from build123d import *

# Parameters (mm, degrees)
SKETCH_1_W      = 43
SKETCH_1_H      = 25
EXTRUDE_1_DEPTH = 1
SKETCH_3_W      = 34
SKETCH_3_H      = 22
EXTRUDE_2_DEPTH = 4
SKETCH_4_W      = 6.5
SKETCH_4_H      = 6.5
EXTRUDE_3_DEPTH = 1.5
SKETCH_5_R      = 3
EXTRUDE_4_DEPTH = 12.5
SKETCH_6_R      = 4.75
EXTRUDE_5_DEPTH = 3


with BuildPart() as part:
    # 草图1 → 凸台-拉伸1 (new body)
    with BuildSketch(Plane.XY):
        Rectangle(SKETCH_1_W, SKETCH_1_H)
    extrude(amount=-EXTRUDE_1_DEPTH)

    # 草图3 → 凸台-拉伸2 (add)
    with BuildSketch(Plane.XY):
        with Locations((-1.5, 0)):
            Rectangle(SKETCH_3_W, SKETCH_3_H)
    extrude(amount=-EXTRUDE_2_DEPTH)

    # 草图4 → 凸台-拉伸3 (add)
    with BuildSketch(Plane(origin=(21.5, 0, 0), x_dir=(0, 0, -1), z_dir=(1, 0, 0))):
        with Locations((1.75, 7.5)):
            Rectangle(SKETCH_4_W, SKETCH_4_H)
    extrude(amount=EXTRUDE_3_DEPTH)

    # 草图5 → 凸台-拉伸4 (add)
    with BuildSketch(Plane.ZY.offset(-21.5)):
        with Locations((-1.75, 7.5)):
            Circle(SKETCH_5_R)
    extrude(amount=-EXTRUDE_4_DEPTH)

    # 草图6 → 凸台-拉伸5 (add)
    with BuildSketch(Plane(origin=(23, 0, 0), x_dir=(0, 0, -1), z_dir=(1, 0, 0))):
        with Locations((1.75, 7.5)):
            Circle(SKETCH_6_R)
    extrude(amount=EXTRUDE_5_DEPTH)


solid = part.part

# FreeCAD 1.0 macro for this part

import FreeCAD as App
import Part
import Sketcher
Q = App.Units.Quantity

doc = App.newDocument("Part")
params = doc.addObject("Spreadsheet::Sheet", "Params")
for row, (alias, value) in enumerate([
    ("sketch1_width", "43 mm"),
    ("sketch1_height", "25 mm"),
    ("pad1_length", "1 mm"),
    ("sketch2_width", "34 mm"),
    ("sketch2_height", "22 mm"),
    ("pad2_length", "4 mm"),
    ("sketch3_width", "6.5 mm"),
    ("pad3_length", "1.5 mm"),
    ("sketch4_diameter", "6 mm"),
    ("pad4_length", "12.5 mm"),
    ("sketch5_diameter", "9.5 mm"),
    ("pad5_length", "3 mm"),
], start=1):
    params.set(f"A{row}", alias)
    params.set(f"B{row}", "=" + value)
    params.setAlias(f"B{row}", alias)

body = doc.addObject("PartDesign::Body", "Body")

# Sketch on XY plane
sketch1 = body.newObject("Sketcher::SketchObject", "Sketch")
sketch1.AttachmentSupport = (doc.getObject("XY_Plane"), [""])
sketch1.MapMode = "FlatFace"
sketch1.addGeometry(Part.LineSegment(App.Vector(-21.5, 12.5, 0), App.Vector(-21.5, -12.5, 0)), False)
sketch1.addGeometry(Part.LineSegment(App.Vector(-21.5, -12.5, 0), App.Vector(21.5, -12.5, 0)), False)
sketch1.addGeometry(Part.LineSegment(App.Vector(21.5, -12.5, 0), App.Vector(21.5, 12.5, 0)), False)
sketch1.addGeometry(Part.LineSegment(App.Vector(21.5, 12.5, 0), App.Vector(-21.5, 12.5, 0)), False)
sketch1.addConstraint(Sketcher.Constraint("Coincident", 0, 2, 1, 1))
sketch1.addConstraint(Sketcher.Constraint("Coincident", 1, 2, 2, 1))
sketch1.addConstraint(Sketcher.Constraint("Coincident", 2, 2, 3, 1))
sketch1.addConstraint(Sketcher.Constraint("Coincident", 3, 2, 0, 1))
sketch1.addConstraint(Sketcher.Constraint("Vertical", 0))
sketch1.addConstraint(Sketcher.Constraint("Horizontal", 1))
sketch1.addConstraint(Sketcher.Constraint("Vertical", 2))
sketch1.addConstraint(Sketcher.Constraint("Horizontal", 3))
sketch1.addConstraint(Sketcher.Constraint("Symmetric", 0, 2, 2, 2, -1, 1))
sketch1.addConstraint(Sketcher.Constraint("DistanceX", 1, 1, 1, 2, Q("43 mm")))
sketch1.addConstraint(Sketcher.Constraint("DistanceY", 0, 2, 0, 1, Q("25 mm")))
sketch1.setExpression("Constraints[9]", "Params.sketch1_width")
sketch1.setExpression("Constraints[10]", "Params.sketch1_height")
pad1 = body.newObject("PartDesign::Pad", "Pad")
pad1.Profile = sketch1
pad1.setExpression("Length", "Params.pad1_length")
pad1.Reversed = True

# Sketch on XY plane
sketch2 = body.newObject("Sketcher::SketchObject", "Sketch001")
sketch2.AttachmentSupport = (doc.getObject("XY_Plane"), [""])
sketch2.MapMode = "FlatFace"
sketch2.addGeometry(Part.LineSegment(App.Vector(-18.5, 11, 0), App.Vector(-18.5, -11, 0)), False)
sketch2.addGeometry(Part.LineSegment(App.Vector(-18.5, -11, 0), App.Vector(15.5, -11, 0)), False)
sketch2.addGeometry(Part.LineSegment(App.Vector(15.5, -11, 0), App.Vector(15.5, 11, 0)), False)
sketch2.addGeometry(Part.LineSegment(App.Vector(15.5, 11, 0), App.Vector(-18.5, 11, 0)), False)
sketch2.addConstraint(Sketcher.Constraint("Coincident", 0, 2, 1, 1))
sketch2.addConstraint(Sketcher.Constraint("Coincident", 1, 2, 2, 1))
sketch2.addConstraint(Sketcher.Constraint("Coincident", 2, 2, 3, 1))
sketch2.addConstraint(Sketcher.Constraint("Coincident", 3, 2, 0, 1))
sketch2.addConstraint(Sketcher.Constraint("Vertical", 0))
sketch2.addConstraint(Sketcher.Constraint("Horizontal", 1))
sketch2.addConstraint(Sketcher.Constraint("Vertical", 2))
sketch2.addConstraint(Sketcher.Constraint("Horizontal", 3))
sketch2.addConstraint(Sketcher.Constraint("DistanceX", 1, 1, 1, 2, Q("34 mm")))
sketch2.addConstraint(Sketcher.Constraint("DistanceY", 0, 2, 0, 1, Q("22 mm")))
sketch2.addConstraint(Sketcher.Constraint("DistanceY", 0, 2, -1, 1, Q("11 mm")))
sketch2.addConstraint(Sketcher.Constraint("DistanceX", 0, 2, -1, 1, Q("18.5 mm")))
sketch2.setExpression("Constraints[8]", "Params.sketch2_width")
sketch2.setExpression("Constraints[9]", "Params.sketch2_height")
pad2 = body.newObject("PartDesign::Pad", "Pad001")
pad2.Profile = sketch2
pad2.setExpression("Length", "Params.pad2_length")
pad2.Reversed = True

# Sketch on YZ plane
sketch3 = body.newObject("Sketcher::SketchObject", "Sketch002")
sketch3.AttachmentSupport = (doc.getObject("YZ_Plane"), [""])
sketch3.MapMode = "FlatFace"
sketch3.AttachmentOffset = App.Placement(App.Vector(0, 0, 21.5), App.Rotation())
sketch3.addGeometry(Part.LineSegment(App.Vector(10.75, 1.5, 0), App.Vector(4.25, 1.5, 0)), False)
sketch3.addGeometry(Part.LineSegment(App.Vector(4.25, 1.5, 0), App.Vector(4.25, -5, 0)), False)
sketch3.addGeometry(Part.LineSegment(App.Vector(4.25, -5, 0), App.Vector(10.75, -5, 0)), False)
sketch3.addGeometry(Part.LineSegment(App.Vector(10.75, -5, 0), App.Vector(10.75, 1.5, 0)), False)
sketch3.addConstraint(Sketcher.Constraint("Coincident", 0, 2, 1, 1))
sketch3.addConstraint(Sketcher.Constraint("Coincident", 1, 2, 2, 1))
sketch3.addConstraint(Sketcher.Constraint("Coincident", 2, 2, 3, 1))
sketch3.addConstraint(Sketcher.Constraint("Coincident", 3, 2, 0, 1))
sketch3.addConstraint(Sketcher.Constraint("Horizontal", 0))
sketch3.addConstraint(Sketcher.Constraint("Vertical", 1))
sketch3.addConstraint(Sketcher.Constraint("Horizontal", 2))
sketch3.addConstraint(Sketcher.Constraint("Vertical", 3))
sketch3.addConstraint(Sketcher.Constraint("Equal", 2, 1))
sketch3.addConstraint(Sketcher.Constraint("DistanceX", 0, 2, 0, 1, Q("6.5 mm")))
sketch3.addConstraint(Sketcher.Constraint("DistanceY", 1, 2, -1, 1, Q("5 mm")))
sketch3.addConstraint(Sketcher.Constraint("DistanceX", -1, 1, 0, 2, Q("4.25 mm")))
sketch3.setExpression("Constraints[9]", "Params.sketch3_width")
pad3 = body.newObject("PartDesign::Pad", "Pad002")
pad3.Profile = sketch3
pad3.setExpression("Length", "Params.pad3_length")

# Sketch on YZ plane
sketch4 = body.newObject("Sketcher::SketchObject", "Sketch003")
sketch4.AttachmentSupport = (doc.getObject("YZ_Plane"), [""])
sketch4.MapMode = "FlatFace"
sketch4.AttachmentOffset = App.Placement(App.Vector(0, 0, 21.5), App.Rotation())
sketch4.addGeometry(Part.Circle(App.Vector(7.5, -1.75, 0), App.Vector(0, 0, 1), 3), False)
sketch4.addConstraint(Sketcher.Constraint("Diameter", 0, Q("6 mm")))
sketch4.addConstraint(Sketcher.Constraint("DistanceX", -1, 1, 0, 3, Q("7.5 mm")))
sketch4.addConstraint(Sketcher.Constraint("DistanceY", 0, 3, -1, 1, Q("1.75 mm")))
sketch4.setExpression("Constraints[0]", "Params.sketch4_diameter")
pad4 = body.newObject("PartDesign::Pad", "Pad003")
pad4.Profile = sketch4
pad4.setExpression("Length", "Params.pad4_length")

# Sketch on YZ plane
sketch5 = body.newObject("Sketcher::SketchObject", "Sketch004")
sketch5.AttachmentSupport = (doc.getObject("YZ_Plane"), [""])
sketch5.MapMode = "FlatFace"
sketch5.AttachmentOffset = App.Placement(App.Vector(0, 0, 23), App.Rotation())
sketch5.addGeometry(Part.Circle(App.Vector(7.5, -1.75, 0), App.Vector(0, 0, 1), 4.75), False)
sketch5.addConstraint(Sketcher.Constraint("Diameter", 0, Q("9.5 mm")))
sketch5.addConstraint(Sketcher.Constraint("DistanceX", -1, 1, 0, 3, Q("7.5 mm")))
sketch5.addConstraint(Sketcher.Constraint("DistanceY", 0, 3, -1, 1, Q("1.75 mm")))
sketch5.setExpression("Constraints[0]", "Params.sketch5_diameter")
pad5 = body.newObject("PartDesign::Pad", "Pad004")
pad5.Profile = sketch5
pad5.setExpression("Length", "Params.pad5_length")

doc.recompute()
